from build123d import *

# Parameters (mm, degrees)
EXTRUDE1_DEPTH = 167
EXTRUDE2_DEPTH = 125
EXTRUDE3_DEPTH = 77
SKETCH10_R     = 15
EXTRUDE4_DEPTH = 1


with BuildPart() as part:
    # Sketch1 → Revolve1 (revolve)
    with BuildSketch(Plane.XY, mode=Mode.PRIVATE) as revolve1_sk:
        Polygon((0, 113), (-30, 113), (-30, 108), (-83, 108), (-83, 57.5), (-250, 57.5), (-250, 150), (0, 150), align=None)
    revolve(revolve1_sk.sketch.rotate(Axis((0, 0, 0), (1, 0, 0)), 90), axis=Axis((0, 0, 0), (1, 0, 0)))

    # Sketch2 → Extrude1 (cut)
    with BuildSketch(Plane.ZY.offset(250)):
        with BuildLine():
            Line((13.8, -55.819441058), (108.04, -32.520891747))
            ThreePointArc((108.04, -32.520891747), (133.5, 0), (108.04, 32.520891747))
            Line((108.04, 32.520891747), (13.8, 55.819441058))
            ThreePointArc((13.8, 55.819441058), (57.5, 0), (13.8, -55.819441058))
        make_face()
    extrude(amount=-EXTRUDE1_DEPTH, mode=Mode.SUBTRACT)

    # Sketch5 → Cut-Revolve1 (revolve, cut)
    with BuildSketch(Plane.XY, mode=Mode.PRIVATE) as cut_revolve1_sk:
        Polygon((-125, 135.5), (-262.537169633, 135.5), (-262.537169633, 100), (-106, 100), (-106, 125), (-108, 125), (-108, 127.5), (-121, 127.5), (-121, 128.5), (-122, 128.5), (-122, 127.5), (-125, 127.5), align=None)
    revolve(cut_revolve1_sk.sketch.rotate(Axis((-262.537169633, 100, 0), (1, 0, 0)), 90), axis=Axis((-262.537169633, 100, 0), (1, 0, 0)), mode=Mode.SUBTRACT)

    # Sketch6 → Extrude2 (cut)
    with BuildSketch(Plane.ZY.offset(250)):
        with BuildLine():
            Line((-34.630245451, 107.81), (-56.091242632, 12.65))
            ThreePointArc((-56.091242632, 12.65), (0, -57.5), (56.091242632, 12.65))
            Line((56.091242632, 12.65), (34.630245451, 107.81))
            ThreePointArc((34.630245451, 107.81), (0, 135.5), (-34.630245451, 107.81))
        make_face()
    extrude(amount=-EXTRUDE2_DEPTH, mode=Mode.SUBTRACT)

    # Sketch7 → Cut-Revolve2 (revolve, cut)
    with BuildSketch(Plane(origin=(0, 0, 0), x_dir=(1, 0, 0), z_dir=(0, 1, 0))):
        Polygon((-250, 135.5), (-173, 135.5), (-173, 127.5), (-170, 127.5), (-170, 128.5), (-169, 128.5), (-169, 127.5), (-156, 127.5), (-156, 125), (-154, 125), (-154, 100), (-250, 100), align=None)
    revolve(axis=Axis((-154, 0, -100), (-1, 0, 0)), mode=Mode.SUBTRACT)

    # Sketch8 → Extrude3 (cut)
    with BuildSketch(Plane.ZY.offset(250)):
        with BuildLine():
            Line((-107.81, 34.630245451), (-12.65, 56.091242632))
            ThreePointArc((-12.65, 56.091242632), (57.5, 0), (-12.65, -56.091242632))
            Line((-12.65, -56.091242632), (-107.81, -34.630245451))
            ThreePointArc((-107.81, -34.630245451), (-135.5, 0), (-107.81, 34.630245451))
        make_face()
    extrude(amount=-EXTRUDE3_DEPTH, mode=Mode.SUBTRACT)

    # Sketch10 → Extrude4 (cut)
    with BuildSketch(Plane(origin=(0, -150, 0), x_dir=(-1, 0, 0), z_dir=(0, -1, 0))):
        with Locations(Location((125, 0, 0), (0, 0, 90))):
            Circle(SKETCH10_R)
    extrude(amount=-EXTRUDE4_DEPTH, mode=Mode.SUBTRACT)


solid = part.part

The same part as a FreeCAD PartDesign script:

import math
import FreeCAD as App
import Part
import Sketcher
from FreeCAD import Vector


def add_polygon(sketch, points):
    """Adds a closed chain of lines whose ends are joined by coincident constraints."""
    first, n = sketch.GeometryCount, len(points)
    for a, b in zip(points, points[1:] + points[:1]):
        sketch.addGeometry(Part.LineSegment(App.Vector(*a, 0), App.Vector(*b, 0)), False)
    for i in range(n):
        sketch.addConstraint(Sketcher.Constraint("Coincident", first + i, 2, first + (i + 1) % n, 1))

doc = App.newDocument("Part")
body = doc.addObject("PartDesign::Body", "Body")

# Sketch on XY plane
sketch1 = body.newObject("Sketcher::SketchObject", "Sketch")
sketch1.AttachmentSupport = (doc.getObject("XY_Plane"), [""])
sketch1.MapMode = "FlatFace"
add_polygon(sketch1, [(-30, 113), (0, 113), (0, 150), (-250, 150), (-250, 57.5), (-83, 57.5), (-83, 108), (-30, 108)])  # lines 0-7
sketch1.addConstraint([
    Sketcher.Constraint("Horizontal", 0),
    Sketcher.Constraint("Vertical", 1),
    Sketcher.Constraint("Horizontal", 2),
    Sketcher.Constraint("Vertical", 3),
    Sketcher.Constraint("Horizontal", 4),
    Sketcher.Constraint("Vertical", 5),
    Sketcher.Constraint("Horizontal", 6),
    Sketcher.Constraint("Vertical", 7),
    Sketcher.Constraint("PointOnObject", 0, 2, -2),
    Sketcher.Constraint("DistanceX", 0, 1, 0, 2, 30.0),
    Sketcher.Constraint("DistanceX", 2, 2, 2, 1, 250.0),
    Sketcher.Constraint("DistanceX", 4, 1, 4, 2, 167.0),
    Sketcher.Constraint("DistanceY", 1, 1, 1, 2, 37.0),
    Sketcher.Constraint("DistanceY", 7, 1, 7, 2, 5.0),
    Sketcher.Constraint("DistanceY", 3, 2, 3, 1, 92.5),
    Sketcher.Constraint("DistanceY", -1, 1, 0, 2, 113.0),
])
revolution = body.newObject("PartDesign::Revolution", "Revolution")
revolution.Profile = sketch1
revolution.ReferenceAxis = (sketch1, ["H_Axis"])
revolution.Angle = 360

# Sketch on YZ plane
sketch2 = body.newObject("Sketcher::SketchObject", "Sketch001")
sketch2.AttachmentSupport = (doc.getObject("YZ_Plane"), [""])
sketch2.MapMode = "FlatFace"
sketch2.AttachmentOffset = App.Placement(Vector(0, 0, -250), App.Rotation())
sketch2.addGeometry([
    Part.LineSegment(Vector(-55.819441, 13.8, 0), Vector(-32.520892, 108.04, 0)),
    Part.ArcOfCircle(Part.Circle(Vector(0, 100, 0), Vector(0, 0, 1), 33.5), math.radians(13.88654), math.radians(166.11346)),
    Part.LineSegment(Vector(32.520892, 108.04, 0), Vector(55.819441, 13.8, 0)),
    Part.ArcOfCircle(Part.Circle(Vector(0, 0, 0), Vector(0, 0, 1), 57.5), math.radians(13.88654), math.radians(166.11346)),
], False)
sketch2.addConstraint([
    Sketcher.Constraint("Tangent", 0, 2, 1, 2),
    Sketcher.Constraint("Tangent", 1, 1, 2, 1),
    Sketcher.Constraint("Tangent", 2, 2, 3, 1),
    Sketcher.Constraint("Tangent", 3, 2, 0, 1),
    Sketcher.Constraint("Coincident", 3, 3, -1, 1),
    Sketcher.Constraint("PointOnObject", 1, 3, -2),
    Sketcher.Constraint("Radius", 1, 33.5),
    Sketcher.Constraint("Radius", 3, 57.5),
    Sketcher.Constraint("DistanceY", -1, 1, 1, 3, 100.0),
])
pocket1 = body.newObject("PartDesign::Pocket", "Pocket")
pocket1.Profile = sketch2
pocket1.Length = 167
pocket1.Reversed = True

# Sketch on XY plane
sketch3 = body.newObject("Sketcher::SketchObject", "Sketch002")
sketch3.AttachmentSupport = (doc.getObject("XY_Plane"), [""])
sketch3.MapMode = "FlatFace"
add_polygon(sketch3, [(-125, 135.5), (-262.53717, 135.5), (-262.53717, 100), (-106, 100), (-106, 125), (-108, 125), (-108, 127.5), (-121, 127.5), (-121, 128.5), (-122, 128.5), (-122, 127.5), (-125, 127.5)])  # lines 0-11
sketch3.addGeometry(Part.LineSegment(Vector(-262.53717, 100, 0), Vector(-106, 100, 0)), True)  # axis
sketch3.addConstraint([
    Sketcher.Constraint("Horizontal", 0),
    Sketcher.Constraint("Vertical", 1),
    Sketcher.Constraint("Horizontal", 2),
    Sketcher.Constraint("Vertical", 3),
    Sketcher.Constraint("Horizontal", 4),
    Sketcher.Constraint("Vertical", 5),
    Sketcher.Constraint("Horizontal", 6),
    Sketcher.Constraint("Vertical", 7),
    Sketcher.Constraint("Horizontal", 8),
    Sketcher.Constraint("Vertical", 9),
    Sketcher.Constraint("Horizontal", 10),
    Sketcher.Constraint("Vertical", 11),
    Sketcher.Constraint("Horizontal", 12),
    Sketcher.Constraint("Coincident", 12, 1, 1, 2),
    Sketcher.Constraint("Horizontal", 6, 2, 9, 2),
    Sketcher.Constraint("Vertical", 3, 2, 12, 2),
    Sketcher.Constraint("Equal", 8, 7),
    Sketcher.Constraint("DistanceX", 4, 2, 4, 1, 2.0),
    Sketcher.Constraint("DistanceX", 6, 2, 6, 1, 13.0),
    Sketcher.Constraint("DistanceX", 8, 2, 8, 1, 1.0),
    Sketcher.Constraint("DistanceX", 10, 2, 10, 1, 3.0),
    Sketcher.Constraint("DistanceY", 3, 1, 3, 2, 25.0),
    Sketcher.Constraint("DistanceY", 11, 1, 11, 2, 8.0),
    Sketcher.Constraint("DistanceY", 1, 2, 1, 1, 35.5),
    Sketcher.Constraint("DistanceY", -1, 1, 1, 2, 100.0),
    Sketcher.Constraint("DistanceX", 2, 2, -1, 1, 106.0),
    Sketcher.Constraint("DistanceX", 0, 2, 0, 1, 137.53717),
])
groove = body.newObject("PartDesign::Groove", "Groove")
groove.Profile = sketch3
groove.ReferenceAxis = (sketch3, ["Axis0"])
groove.Angle = 360

# Sketch on YZ plane
sketch4 = body.newObject("Sketcher::SketchObject", "Sketch003")
sketch4.AttachmentSupport = (doc.getObject("YZ_Plane"), [""])
sketch4.MapMode = "FlatFace"
sketch4.AttachmentOffset = App.Placement(Vector(0, 0, -250), App.Rotation())
sketch4.addGeometry([
    Part.LineSegment(Vector(107.81, -34.630245, 0), Vector(12.65, -56.091243, 0)),
    Part.ArcOfCircle(Part.Circle(Vector(0, 0, 0), Vector(0, 0, 1), 57.5), math.radians(77.290967), math.radians(282.709033)),
    Part.LineSegment(Vector(12.65, 56.091243, 0), Vector(107.81, 34.630245, 0)),
    Part.ArcOfCircle(Part.Circle(Vector(100, 0, 0), Vector(0, 0, 1), 35.5), math.radians(-77.290967), math.radians(77.290967)),
], False)
sketch4.addConstraint([
    Sketcher.Constraint("Tangent", 0, 2, 1, 2),
    Sketcher.Constraint("Tangent", 1, 1, 2, 1),
    Sketcher.Constraint("Tangent", 2, 2, 3, 2),
    Sketcher.Constraint("Tangent", 3, 1, 0, 1),
    Sketcher.Constraint("Coincident", 1, 3, -1, 1),
    Sketcher.Constraint("PointOnObject", 3, 3, -1),
    Sketcher.Constraint("Radius", 1, 57.5),
    Sketcher.Constraint("Radius", 3, 35.5),
    Sketcher.Constraint("DistanceX", -1, 1, 3, 3, 100.0),
])
pocket2 = body.newObject("PartDesign::Pocket", "Pocket001")
pocket2.Profile = sketch4
pocket2.Length = 125
pocket2.Reversed = True

# Sketch on XZ plane
sketch5 = body.newObject("Sketcher::SketchObject", "Sketch004")
sketch5.AttachmentSupport = (doc.getObject("XZ_Plane"), [""])
sketch5.MapMode = "FlatFace"
add_polygon(sketch5, [(-173, -135.5), (-250, -135.5), (-250, -100), (-154, -100), (-154, -125), (-156, -125), (-156, -127.5), (-169, -127.5), (-169, -128.5), (-170, -128.5), (-170, -127.5), (-173, -127.5)])  # lines 0-11
sketch5.addGeometry(Part.LineSegment(Vector(-154, -100, 0), Vector(-250, -100, 0)), True)  # axis
sketch5.addConstraint([
    Sketcher.Constraint("Horizontal", 0),
    Sketcher.Constraint("Vertical", 1),
    Sketcher.Constraint("Horizontal", 2),
    Sketcher.Constraint("Vertical", 3),
    Sketcher.Constraint("Horizontal", 4),
    Sketcher.Constraint("Vertical", 5),
    Sketcher.Constraint("Horizontal", 6),
    Sketcher.Constraint("Vertical", 7),
    Sketcher.Constraint("Horizontal", 8),
    Sketcher.Constraint("Vertical", 9),
    Sketcher.Constraint("Horizontal", 10),
    Sketcher.Constraint("Vertical", 11),
    Sketcher.Constraint("Horizontal", 12),
    Sketcher.Constraint("Coincident", 12, 1, 2, 2),
    Sketcher.Constraint("Horizontal", 6, 2, 9, 2),
    Sketcher.Constraint("Vertical", 0, 2, 12, 2),
    Sketcher.Constraint("Equal", 8, 7),
    Sketcher.Constraint("DistanceX", 0, 2, 0, 1, 77.0),
    Sketcher.Constraint("DistanceX", 2, 1, 2, 2, 96.0),
    Sketcher.Constraint("DistanceX", 4, 2, 4, 1, 2.0),
    Sketcher.Constraint("DistanceX", 6, 2, 6, 1, 13.0),
    Sketcher.Constraint("DistanceX", 8, 2, 8, 1, 1.0),
    Sketcher.Constraint("DistanceY", 3, 2, 3, 1, 25.0),
    Sketcher.Constraint("DistanceY", 11, 2, 11, 1, 8.0),
    Sketcher.Constraint("DistanceY", 1, 1, 1, 2, 35.5),
    Sketcher.Constraint("DistanceX", 0, 2, -1, 1, 250.0),
    Sketcher.Constraint("DistanceY", 1, 2, -1, 1, 100.0),
])
groove2 = body.newObject("PartDesign::Groove", "Groove001")
groove2.Profile = sketch5
groove2.ReferenceAxis = (sketch5, ["Axis0"])
groove2.Angle = 360

# Sketch on YZ plane
sketch6 = body.newObject("Sketcher::SketchObject", "Sketch005")
sketch6.AttachmentSupport = (doc.getObject("YZ_Plane"), [""])
sketch6.MapMode = "FlatFace"
sketch6.AttachmentOffset = App.Placement(Vector(0, 0, -250), App.Rotation())
sketch6.addGeometry([
    Part.LineSegment(Vector(56.091243, -12.65, 0), Vector(34.630245, -107.81, 0)),
    Part.ArcOfCircle(Part.Circle(Vector(0, -100, 0), Vector(0, 0, 1), 35.5), math.radians(-167.290967), math.radians(-12.709033)),
    Part.LineSegment(Vector(-34.630245, -107.81, 0), Vector(-56.091243, -12.65, 0)),
    Part.ArcOfCircle(Part.Circle(Vector(0, 0, 0), Vector(0, 0, 1), 57.5), math.radians(-12.709033), math.radians(192.709033)),
], False)
sketch6.addConstraint([
    Sketcher.Constraint("Tangent", 0, 2, 1, 2),
    Sketcher.Constraint("Tangent", 1, 1, 2, 1),
    Sketcher.Constraint("Tangent", 2, 2, 3, 2),
    Sketcher.Constraint("Tangent", 3, 1, 0, 1),
    Sketcher.Constraint("Coincident", 3, 3, -1, 1),
    Sketcher.Constraint("PointOnObject", 1, 3, -2),
    Sketcher.Constraint("Radius", 1, 35.5),
    Sketcher.Constraint("Radius", 3, 57.5),
    Sketcher.Constraint("DistanceY", 1, 3, -1, 1, 100.0),
])
pocket3 = body.newObject("PartDesign::Pocket", "Pocket002")
pocket3.Profile = sketch6
pocket3.Length = 77
pocket3.Reversed = True

# Sketch on XZ plane
sketch7 = body.newObject("Sketcher::SketchObject", "Sketch006")
sketch7.AttachmentSupport = (doc.getObject("XZ_Plane"), [""])
sketch7.MapMode = "FlatFace"
sketch7.AttachmentOffset = App.Placement(Vector(0, 0, 150), App.Rotation())
sketch7.addGeometry(Part.Circle(Vector(-125, 0, 0), Vector(0, 0, 1), 15), False)
sketch7.addConstraint([
    Sketcher.Constraint("PointOnObject", 0, 3, -1),
    Sketcher.Constraint("Diameter", 0, 30.0),
    Sketcher.Constraint("DistanceX", 0, 3, -1, 1, 125.0),
])
pocket4 = body.newObject("PartDesign::Pocket", "Pocket003")
pocket4.Profile = sketch7
pocket4.Length = 1

doc.recompute()
